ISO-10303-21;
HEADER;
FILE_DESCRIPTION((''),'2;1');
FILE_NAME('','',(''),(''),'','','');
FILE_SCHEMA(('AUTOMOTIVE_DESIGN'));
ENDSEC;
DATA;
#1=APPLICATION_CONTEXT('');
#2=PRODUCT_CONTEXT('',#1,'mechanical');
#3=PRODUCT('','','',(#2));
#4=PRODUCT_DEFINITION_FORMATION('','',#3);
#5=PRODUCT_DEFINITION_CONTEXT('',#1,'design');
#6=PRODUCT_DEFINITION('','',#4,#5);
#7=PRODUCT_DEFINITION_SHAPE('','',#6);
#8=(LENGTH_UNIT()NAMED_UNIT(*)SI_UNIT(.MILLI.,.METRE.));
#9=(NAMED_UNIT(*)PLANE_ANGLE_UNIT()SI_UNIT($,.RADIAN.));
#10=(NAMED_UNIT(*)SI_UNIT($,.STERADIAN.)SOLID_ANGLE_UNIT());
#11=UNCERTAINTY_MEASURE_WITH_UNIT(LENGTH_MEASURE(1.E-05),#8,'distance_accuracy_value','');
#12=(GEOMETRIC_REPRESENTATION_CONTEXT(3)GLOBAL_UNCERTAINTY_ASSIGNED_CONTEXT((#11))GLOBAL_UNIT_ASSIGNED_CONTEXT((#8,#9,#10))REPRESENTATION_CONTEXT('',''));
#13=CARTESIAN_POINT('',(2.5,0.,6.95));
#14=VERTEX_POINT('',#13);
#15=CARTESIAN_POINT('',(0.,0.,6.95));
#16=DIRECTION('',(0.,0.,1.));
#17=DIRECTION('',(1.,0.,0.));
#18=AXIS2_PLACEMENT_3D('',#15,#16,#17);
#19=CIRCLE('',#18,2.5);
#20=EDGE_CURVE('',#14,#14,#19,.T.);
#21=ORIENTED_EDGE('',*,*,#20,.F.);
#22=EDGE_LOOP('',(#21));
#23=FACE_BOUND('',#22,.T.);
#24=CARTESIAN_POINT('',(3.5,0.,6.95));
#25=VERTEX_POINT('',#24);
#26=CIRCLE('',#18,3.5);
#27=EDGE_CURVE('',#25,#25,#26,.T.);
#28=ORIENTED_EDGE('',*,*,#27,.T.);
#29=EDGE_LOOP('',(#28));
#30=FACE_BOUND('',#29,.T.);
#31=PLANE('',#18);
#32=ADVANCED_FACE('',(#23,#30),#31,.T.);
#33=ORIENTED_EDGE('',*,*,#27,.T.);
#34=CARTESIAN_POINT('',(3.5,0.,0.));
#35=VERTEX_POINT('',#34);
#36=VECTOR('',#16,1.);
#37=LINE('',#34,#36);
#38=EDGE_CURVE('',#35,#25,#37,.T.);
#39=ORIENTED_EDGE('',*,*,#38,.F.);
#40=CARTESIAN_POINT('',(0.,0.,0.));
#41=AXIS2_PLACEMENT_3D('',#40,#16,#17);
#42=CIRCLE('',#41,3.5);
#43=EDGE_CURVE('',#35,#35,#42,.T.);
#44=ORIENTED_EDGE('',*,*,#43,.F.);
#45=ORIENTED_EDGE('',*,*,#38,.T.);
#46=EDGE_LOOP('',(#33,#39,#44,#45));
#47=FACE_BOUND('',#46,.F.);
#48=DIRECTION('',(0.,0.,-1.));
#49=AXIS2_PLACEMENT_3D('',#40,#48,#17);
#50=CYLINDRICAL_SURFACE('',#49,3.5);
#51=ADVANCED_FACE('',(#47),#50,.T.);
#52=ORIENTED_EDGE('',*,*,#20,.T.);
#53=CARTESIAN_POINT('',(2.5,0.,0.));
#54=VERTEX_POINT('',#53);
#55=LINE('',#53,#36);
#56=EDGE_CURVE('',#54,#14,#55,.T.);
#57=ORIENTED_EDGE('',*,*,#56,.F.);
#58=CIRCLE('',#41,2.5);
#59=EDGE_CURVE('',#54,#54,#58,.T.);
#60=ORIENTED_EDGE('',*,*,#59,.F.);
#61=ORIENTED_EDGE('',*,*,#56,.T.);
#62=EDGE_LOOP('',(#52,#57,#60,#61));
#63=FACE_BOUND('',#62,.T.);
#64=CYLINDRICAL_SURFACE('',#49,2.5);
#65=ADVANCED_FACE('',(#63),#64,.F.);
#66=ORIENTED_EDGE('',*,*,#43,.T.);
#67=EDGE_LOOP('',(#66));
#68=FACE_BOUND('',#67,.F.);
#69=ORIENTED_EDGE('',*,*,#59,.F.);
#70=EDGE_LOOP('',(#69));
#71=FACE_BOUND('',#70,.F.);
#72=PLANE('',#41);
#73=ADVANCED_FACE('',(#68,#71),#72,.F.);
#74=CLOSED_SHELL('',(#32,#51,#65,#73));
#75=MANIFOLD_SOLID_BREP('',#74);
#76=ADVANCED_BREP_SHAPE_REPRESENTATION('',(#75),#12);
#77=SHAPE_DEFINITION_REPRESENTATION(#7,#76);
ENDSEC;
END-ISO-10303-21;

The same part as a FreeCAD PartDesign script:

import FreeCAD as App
import Part
import Sketcher
Q = App.Units.Quantity

doc = App.newDocument("Part")
body = doc.addObject("PartDesign::Body", "Body")

sketch1 = body.newObject("Sketcher::SketchObject", "Sketch")
sketch1.AttachmentSupport = (doc.getObject("XY_Plane"), [""])
sketch1.MapMode = "FlatFace"
sketch1.addGeometry(Part.Circle(App.Vector(0, 0, 0), App.Vector(0, 0, 1), 3.5), False)
sketch1.addGeometry(Part.Circle(App.Vector(0, 0, 0), App.Vector(0, 0, 1), 2.5), False)
sketch1.addConstraint(Sketcher.Constraint("Coincident", 0, 3, -1, 1))
sketch1.addConstraint(Sketcher.Constraint("Coincident", 1, 3, -1, 1))
sketch1.addConstraint(Sketcher.Constraint("Diameter", 0, Q("7 mm")))
sketch1.addConstraint(Sketcher.Constraint("Diameter", 1, Q("5 mm")))
pad1 = body.newObject("PartDesign::Pad", "Pad")
pad1.Profile = sketch1
pad1.Length = 6.95

doc.recompute()
